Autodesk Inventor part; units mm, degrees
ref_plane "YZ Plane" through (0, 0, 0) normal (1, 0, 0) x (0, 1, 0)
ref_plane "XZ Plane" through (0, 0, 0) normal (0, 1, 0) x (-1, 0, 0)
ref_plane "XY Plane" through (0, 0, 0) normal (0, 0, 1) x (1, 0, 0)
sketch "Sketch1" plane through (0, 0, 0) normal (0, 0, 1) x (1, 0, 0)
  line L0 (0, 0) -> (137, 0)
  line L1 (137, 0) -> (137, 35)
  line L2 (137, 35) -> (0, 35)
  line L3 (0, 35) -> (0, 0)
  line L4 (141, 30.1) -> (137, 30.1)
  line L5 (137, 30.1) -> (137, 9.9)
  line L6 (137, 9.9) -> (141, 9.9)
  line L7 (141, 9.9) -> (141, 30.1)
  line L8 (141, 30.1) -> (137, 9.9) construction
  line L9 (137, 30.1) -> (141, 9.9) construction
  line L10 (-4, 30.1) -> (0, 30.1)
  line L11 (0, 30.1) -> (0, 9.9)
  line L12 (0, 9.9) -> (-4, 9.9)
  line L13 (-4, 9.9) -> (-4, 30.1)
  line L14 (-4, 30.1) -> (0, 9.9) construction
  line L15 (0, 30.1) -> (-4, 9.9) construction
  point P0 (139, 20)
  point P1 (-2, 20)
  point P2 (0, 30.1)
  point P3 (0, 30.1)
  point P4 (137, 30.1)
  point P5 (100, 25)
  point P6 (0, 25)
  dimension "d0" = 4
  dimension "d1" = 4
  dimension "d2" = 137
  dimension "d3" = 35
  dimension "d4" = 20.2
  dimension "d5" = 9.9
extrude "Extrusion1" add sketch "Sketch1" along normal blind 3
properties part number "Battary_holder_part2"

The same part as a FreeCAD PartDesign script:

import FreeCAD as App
import Part
import Sketcher
Q = App.Units.Quantity


def add_polygon(sketch, points):
    """Adds a closed chain of lines whose ends are joined by coincident constraints."""
    first, n = sketch.GeometryCount, len(points)
    for a, b in zip(points, points[1:] + points[:1]):
        sketch.addGeometry(Part.LineSegment(App.Vector(*a, 0), App.Vector(*b, 0)), False)
    for i in range(n):
        sketch.addConstraint(Sketcher.Constraint("Coincident", first + i, 2, first + (i + 1) % n, 1))

doc = App.newDocument("Part")
params = doc.addObject("Spreadsheet::Sheet", "Params")
for row, (alias, value) in enumerate([
    ("sketch1_width", "137 mm"),
    ("sketch1_width2", "4 mm"),
    ("sketch1_height", "9.9 mm"),
    ("sketch1_height2", "20.2 mm"),
    ("pad1_length", "3 mm"),
], start=1):
    params.set(f"A{row}", alias)
    params.set(f"B{row}", "=" + value)
    params.setAlias(f"B{row}", alias)

body = doc.addObject("PartDesign::Body", "Body")

# Sketch on XY plane
sketch1 = body.newObject("Sketcher::SketchObject", "Sketch")
sketch1.AttachmentSupport = (doc.getObject("XY_Plane"), [""])
sketch1.MapMode = "FlatFace"
add_polygon(sketch1, [(0, 9.9), (0, 0), (137, 0), (137, 9.9), (141, 9.9), (141, 30.1), (137, 30.1), (137, 35), (0, 35), (0, 30.1), (-4, 30.1), (-4, 9.9)])  # lines 0-11
sketch1.addConstraint(Sketcher.Constraint("Vertical", 0))
sketch1.addConstraint(Sketcher.Constraint("Horizontal", 1))
sketch1.addConstraint(Sketcher.Constraint("Vertical", 2))
sketch1.addConstraint(Sketcher.Constraint("Horizontal", 3))
sketch1.addConstraint(Sketcher.Constraint("Vertical", 4))
sketch1.addConstraint(Sketcher.Constraint("Horizontal", 5))
sketch1.addConstraint(Sketcher.Constraint("Vertical", 6))
sketch1.addConstraint(Sketcher.Constraint("Horizontal", 7))
sketch1.addConstraint(Sketcher.Constraint("Vertical", 8))
sketch1.addConstraint(Sketcher.Constraint("Horizontal", 9))
sketch1.addConstraint(Sketcher.Constraint("Vertical", 10))
sketch1.addConstraint(Sketcher.Constraint("Horizontal", 11))
sketch1.addConstraint(Sketcher.Constraint("Coincident", 0, 2, -1, 1))
sketch1.addConstraint(Sketcher.Constraint("PointOnObject", 7, 2, -2))
sketch1.addConstraint(Sketcher.Constraint("Horizontal", 5, 2, 8, 2))
sketch1.addConstraint(Sketcher.Constraint("Horizontal", 3, 2, 10, 2))
sketch1.addConstraint(Sketcher.Constraint("Vertical", 2, 2, 5, 2))
sketch1.addConstraint(Sketcher.Constraint("Equal", 5, 9))
sketch1.addConstraint(Sketcher.Constraint("DistanceX", 1, 1, 1, 2, Q("137 mm")))
sketch1.addConstraint(Sketcher.Constraint("DistanceX", 3, 1, 3, 2, Q("4 mm")))
sketch1.addConstraint(Sketcher.Constraint("DistanceY", 0, 2, 0, 1, Q("9.9 mm")))
sketch1.addConstraint(Sketcher.Constraint("DistanceY", 4, 1, 4, 2, Q("20.2 mm")))
sketch1.addConstraint(Sketcher.Constraint("DistanceY", -1, 1, 6, 2, Q("35 mm")))
sketch1.setExpression("Constraints[30]", "Params.sketch1_width")
sketch1.setExpression("Constraints[31]", "Params.sketch1_width2")
sketch1.setExpression("Constraints[32]", "Params.sketch1_height")
sketch1.setExpression("Constraints[33]", "Params.sketch1_height2")
pad1 = body.newObject("PartDesign::Pad", "Pad")
pad1.Profile = sketch1
pad1.setExpression("Length", "Params.pad1_length")

doc.recompute()
